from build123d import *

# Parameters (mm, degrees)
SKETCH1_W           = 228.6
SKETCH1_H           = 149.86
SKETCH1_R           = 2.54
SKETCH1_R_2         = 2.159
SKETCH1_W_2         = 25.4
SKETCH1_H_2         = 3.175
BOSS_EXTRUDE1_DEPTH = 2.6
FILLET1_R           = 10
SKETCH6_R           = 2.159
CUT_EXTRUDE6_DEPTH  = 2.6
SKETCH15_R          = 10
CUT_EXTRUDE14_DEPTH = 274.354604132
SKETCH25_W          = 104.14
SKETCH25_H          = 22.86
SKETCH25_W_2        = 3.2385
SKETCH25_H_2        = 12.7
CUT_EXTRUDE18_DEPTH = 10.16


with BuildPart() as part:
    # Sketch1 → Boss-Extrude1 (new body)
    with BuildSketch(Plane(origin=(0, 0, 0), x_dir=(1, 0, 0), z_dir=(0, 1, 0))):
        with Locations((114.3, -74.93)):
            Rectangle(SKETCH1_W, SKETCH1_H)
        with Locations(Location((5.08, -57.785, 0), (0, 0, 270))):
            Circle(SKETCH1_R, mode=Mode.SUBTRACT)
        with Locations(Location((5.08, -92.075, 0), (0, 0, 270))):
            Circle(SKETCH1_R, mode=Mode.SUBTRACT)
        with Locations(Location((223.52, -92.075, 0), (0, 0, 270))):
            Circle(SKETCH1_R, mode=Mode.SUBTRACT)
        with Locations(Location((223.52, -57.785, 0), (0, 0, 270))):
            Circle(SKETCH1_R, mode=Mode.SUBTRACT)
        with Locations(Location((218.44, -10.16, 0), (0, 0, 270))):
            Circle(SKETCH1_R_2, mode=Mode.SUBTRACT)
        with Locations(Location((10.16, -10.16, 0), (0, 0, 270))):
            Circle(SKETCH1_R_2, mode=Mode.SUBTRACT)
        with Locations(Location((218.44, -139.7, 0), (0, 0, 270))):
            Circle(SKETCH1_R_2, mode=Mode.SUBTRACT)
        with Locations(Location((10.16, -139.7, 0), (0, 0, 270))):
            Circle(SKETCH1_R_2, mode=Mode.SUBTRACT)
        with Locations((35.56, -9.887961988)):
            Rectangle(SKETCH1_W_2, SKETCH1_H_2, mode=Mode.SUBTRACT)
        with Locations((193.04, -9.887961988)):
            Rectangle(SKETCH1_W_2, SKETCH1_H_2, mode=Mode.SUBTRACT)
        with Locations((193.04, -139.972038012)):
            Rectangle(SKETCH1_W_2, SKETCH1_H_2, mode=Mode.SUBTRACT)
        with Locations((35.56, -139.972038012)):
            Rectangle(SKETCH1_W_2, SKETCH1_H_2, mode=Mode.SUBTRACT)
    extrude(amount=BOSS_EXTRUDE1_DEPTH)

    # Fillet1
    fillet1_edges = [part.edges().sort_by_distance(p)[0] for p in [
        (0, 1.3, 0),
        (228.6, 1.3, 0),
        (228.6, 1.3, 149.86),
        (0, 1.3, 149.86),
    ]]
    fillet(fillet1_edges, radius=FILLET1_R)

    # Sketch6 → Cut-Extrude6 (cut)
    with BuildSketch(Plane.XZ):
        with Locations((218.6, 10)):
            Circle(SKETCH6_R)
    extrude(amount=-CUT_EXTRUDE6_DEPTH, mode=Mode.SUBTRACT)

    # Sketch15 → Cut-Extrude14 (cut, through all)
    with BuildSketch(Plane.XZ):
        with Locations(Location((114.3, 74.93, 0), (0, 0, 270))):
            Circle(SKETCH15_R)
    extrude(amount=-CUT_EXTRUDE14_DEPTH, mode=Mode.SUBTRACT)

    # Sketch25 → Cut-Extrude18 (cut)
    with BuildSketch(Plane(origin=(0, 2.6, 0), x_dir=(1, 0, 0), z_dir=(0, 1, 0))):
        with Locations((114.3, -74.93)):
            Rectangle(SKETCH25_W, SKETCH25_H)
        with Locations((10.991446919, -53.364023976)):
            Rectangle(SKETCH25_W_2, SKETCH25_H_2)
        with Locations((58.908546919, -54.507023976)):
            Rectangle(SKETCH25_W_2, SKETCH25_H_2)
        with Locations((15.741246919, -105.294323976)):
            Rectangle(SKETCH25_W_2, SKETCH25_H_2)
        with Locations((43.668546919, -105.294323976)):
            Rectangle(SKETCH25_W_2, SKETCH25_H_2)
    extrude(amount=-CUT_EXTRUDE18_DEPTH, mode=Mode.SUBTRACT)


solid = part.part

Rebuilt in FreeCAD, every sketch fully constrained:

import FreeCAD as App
import Part
import Sketcher

V = App.Vector
Q = App.Units.Quantity


def edges_at(feature, points):
    """Names of the edges that pass closest to the given points."""
    edges = feature.Shape.Edges
    near = lambda p: min(range(len(edges)), key=lambda i: edges[i].distToShape(Part.Vertex(*p))[0])
    return sorted({f"Edge{near(p) + 1}" for p in points})

doc = App.newDocument("Part")
body = doc.addObject("PartDesign::Body", "Body")

# Sketch on XZ plane
sketch1 = body.newObject("Sketcher::SketchObject", "Sketch")
sketch1.AttachmentSupport = (doc.getObject("XZ_Plane"), [""])
sketch1.MapMode = "FlatFace"
sketch1.addGeometry(Part.LineSegment(V(0, 0, 0), V(0, 149.86, 0)), False)
sketch1.addGeometry(Part.LineSegment(V(0, 149.86, 0), V(228.6, 149.86, 0)), False)
sketch1.addGeometry(Part.LineSegment(V(228.6, 149.86, 0), V(228.6, 0, 0)), False)
sketch1.addGeometry(Part.LineSegment(V(228.6, 0, 0), V(0, 0, 0)), False)
sketch1.addGeometry(Part.Circle(V(10.16, 139.7, 0), V(0, 0, 1), 2.159), False)
sketch1.addGeometry(Part.LineSegment(V(48.26, 141.559538, 0), V(22.86, 141.559538, 0)), False)
sketch1.addGeometry(Part.LineSegment(V(22.86, 141.559538, 0), V(22.86, 138.384538, 0)), False)
sketch1.addGeometry(Part.LineSegment(V(22.86, 138.384538, 0), V(48.26, 138.384538, 0)), False)
sketch1.addGeometry(Part.LineSegment(V(48.26, 138.384538, 0), V(48.26, 141.559538, 0)), False)
sketch1.addGeometry(Part.Circle(V(5.08, 92.075, 0), V(0, 0, 1), 2.54), False)
sketch1.addGeometry(Part.LineSegment(V(205.74, 141.559538, 0), V(180.34, 141.559538, 0)), False)
sketch1.addGeometry(Part.LineSegment(V(180.34, 141.559538, 0), V(180.34, 138.384538, 0)), False)
sketch1.addGeometry(Part.LineSegment(V(180.34, 138.384538, 0), V(205.74, 138.384538, 0)), False)
sketch1.addGeometry(Part.LineSegment(V(205.74, 138.384538, 0), V(205.74, 141.559538, 0)), False)
sketch1.addGeometry(Part.Circle(V(218.44, 139.7, 0), V(0, 0, 1), 2.159), False)
sketch1.addGeometry(Part.Circle(V(223.52, 92.075, 0), V(0, 0, 1), 2.54), False)
sketch1.addGeometry(Part.Circle(V(5.08, 57.785, 0), V(0, 0, 1), 2.54), False)
sketch1.addGeometry(Part.Circle(V(10.16, 10.16, 0), V(0, 0, 1), 2.159), False)
sketch1.addGeometry(Part.LineSegment(V(48.26, 11.475462, 0), V(22.86, 11.475462, 0)), False)
sketch1.addGeometry(Part.LineSegment(V(22.86, 11.475462, 0), V(22.86, 8.300462, 0)), False)
sketch1.addGeometry(Part.LineSegment(V(22.86, 8.300462, 0), V(48.26, 8.300462, 0)), False)
sketch1.addGeometry(Part.LineSegment(V(48.26, 8.300462, 0), V(48.26, 11.475462, 0)), False)
sketch1.addGeometry(Part.Circle(V(223.52, 57.785, 0), V(0, 0, 1), 2.54), False)
sketch1.addGeometry(Part.LineSegment(V(205.74, 11.475462, 0), V(180.34, 11.475462, 0)), False)
sketch1.addGeometry(Part.LineSegment(V(180.34, 11.475462, 0), V(180.34, 8.300462, 0)), False)
sketch1.addGeometry(Part.LineSegment(V(180.34, 8.300462, 0), V(205.74, 8.300462, 0)), False)
sketch1.addGeometry(Part.LineSegment(V(205.74, 8.300462, 0), V(205.74, 11.475462, 0)), False)
sketch1.addGeometry(Part.Circle(V(218.44, 10.16, 0), V(0, 0, 1), 2.159), False)
sketch1.addConstraint(Sketcher.Constraint("Coincident", 0, 2, 1, 1))
sketch1.addConstraint(Sketcher.Constraint("Coincident", 1, 2, 2, 1))
sketch1.addConstraint(Sketcher.Constraint("Coincident", 2, 2, 3, 1))
sketch1.addConstraint(Sketcher.Constraint("Coincident", 3, 2, 0, 1))
sketch1.addConstraint(Sketcher.Constraint("Coincident", 5, 2, 6, 1))
sketch1.addConstraint(Sketcher.Constraint("Coincident", 6, 2, 7, 1))
sketch1.addConstraint(Sketcher.Constraint("Coincident", 7, 2, 8, 1))
sketch1.addConstraint(Sketcher.Constraint("Coincident", 8, 2, 5, 1))
sketch1.addConstraint(Sketcher.Constraint("Coincident", 10, 2, 11, 1))
sketch1.addConstraint(Sketcher.Constraint("Coincident", 11, 2, 12, 1))
sketch1.addConstraint(Sketcher.Constraint("Coincident", 12, 2, 13, 1))
sketch1.addConstraint(Sketcher.Constraint("Coincident", 13, 2, 10, 1))
sketch1.addConstraint(Sketcher.Constraint("Coincident", 18, 2, 19, 1))
sketch1.addConstraint(Sketcher.Constraint("Coincident", 19, 2, 20, 1))
sketch1.addConstraint(Sketcher.Constraint("Coincident", 20, 2, 21, 1))
sketch1.addConstraint(Sketcher.Constraint("Coincident", 21, 2, 18, 1))
sketch1.addConstraint(Sketcher.Constraint("Coincident", 23, 2, 24, 1))
sketch1.addConstraint(Sketcher.Constraint("Coincident", 24, 2, 25, 1))
sketch1.addConstraint(Sketcher.Constraint("Coincident", 25, 2, 26, 1))
sketch1.addConstraint(Sketcher.Constraint("Coincident", 26, 2, 23, 1))
sketch1.addConstraint(Sketcher.Constraint("Vertical", 0))
sketch1.addConstraint(Sketcher.Constraint("Horizontal", 1))
sketch1.addConstraint(Sketcher.Constraint("Vertical", 2))
sketch1.addConstraint(Sketcher.Constraint("Horizontal", 3))
sketch1.addConstraint(Sketcher.Constraint("Horizontal", 5))
sketch1.addConstraint(Sketcher.Constraint("Vertical", 6))
sketch1.addConstraint(Sketcher.Constraint("Horizontal", 7))
sketch1.addConstraint(Sketcher.Constraint("Vertical", 8))
sketch1.addConstraint(Sketcher.Constraint("Horizontal", 10))
sketch1.addConstraint(Sketcher.Constraint("Vertical", 11))
sketch1.addConstraint(Sketcher.Constraint("Horizontal", 12))
sketch1.addConstraint(Sketcher.Constraint("Vertical", 13))
sketch1.addConstraint(Sketcher.Constraint("Horizontal", 18))
sketch1.addConstraint(Sketcher.Constraint("Vertical", 19))
sketch1.addConstraint(Sketcher.Constraint("Horizontal", 20))
sketch1.addConstraint(Sketcher.Constraint("Vertical", 21))
sketch1.addConstraint(Sketcher.Constraint("Horizontal", 23))
sketch1.addConstraint(Sketcher.Constraint("Vertical", 24))
sketch1.addConstraint(Sketcher.Constraint("Horizontal", 25))
sketch1.addConstraint(Sketcher.Constraint("Vertical", 26))
sketch1.addConstraint(Sketcher.Constraint("Coincident", 3, 2, -1, 1))
sketch1.addConstraint(Sketcher.Constraint("Equal", 4, 14))
sketch1.addConstraint(Sketcher.Constraint("Equal", 9, 15))
sketch1.addConstraint(Sketcher.Constraint("Equal", 15, 16))
sketch1.addConstraint(Sketcher.Constraint("Equal", 14, 17))
sketch1.addConstraint(Sketcher.Constraint("Equal", 16, 22))
sketch1.addConstraint(Sketcher.Constraint("Equal", 17, 27))
sketch1.addConstraint(Sketcher.Constraint("Horizontal", 4, 3, 14, 3))
sketch1.addConstraint(Sketcher.Constraint("Horizontal", 9, 3, 15, 3))
sketch1.addConstraint(Sketcher.Constraint("Horizontal", 16, 3, 22, 3))
sketch1.addConstraint(Sketcher.Constraint("Horizontal", 17, 3, 27, 3))
sketch1.addConstraint(Sketcher.Constraint("Horizontal", 8, 2, 10, 2))
sketch1.addConstraint(Sketcher.Constraint("Horizontal", 7, 2, 11, 2))
sketch1.addConstraint(Sketcher.Constraint("Horizontal", 21, 2, 23, 2))
sketch1.addConstraint(Sketcher.Constraint("Horizontal", 20, 2, 24, 2))
sketch1.addConstraint(Sketcher.Constraint("Vertical", 9, 3, 16, 3))
sketch1.addConstraint(Sketcher.Constraint("Vertical", 4, 3, 17, 3))
sketch1.addConstraint(Sketcher.Constraint("Vertical", 15, 3, 22, 3))
sketch1.addConstraint(Sketcher.Constraint("Vertical", 14, 3, 27, 3))
sketch1.addConstraint(Sketcher.Constraint("Vertical", 6, 2, 18, 2))
sketch1.addConstraint(Sketcher.Constraint("Vertical", 8, 2, 20, 2))
sketch1.addConstraint(Sketcher.Constraint("Vertical", 11, 2, 23, 2))
sketch1.addConstraint(Sketcher.Constraint("Vertical", 13, 2, 25, 2))
sketch1.addConstraint(Sketcher.Constraint("Equal", 7, 10))
sketch1.addConstraint(Sketcher.Constraint("Equal", 13, 19))
sketch1.addConstraint(Sketcher.Constraint("Diameter", 9, Q("0.2 in")))
sketch1.addConstraint(Sketcher.Constraint("Diameter", 4, Q("0.17 in")))
sketch1.addConstraint(Sketcher.Constraint("DistanceX", 1, 1, 1, 2, Q("9 in")))
sketch1.addConstraint(Sketcher.Constraint("DistanceX", 5, 2, 5, 1, Q("1 in")))
sketch1.addConstraint(Sketcher.Constraint("DistanceY", 0, 1, 0, 2, Q("5.9 in")))
sketch1.addConstraint(Sketcher.Constraint("DistanceX", -1, 1, 4, 3, Q("0.4 in")))
sketch1.addConstraint(Sketcher.Constraint("DistanceY", -1, 1, 4, 3, Q("5.5 in")))
sketch1.addConstraint(Sketcher.Constraint("DistanceX", -1, 1, 9, 3, Q("0.2 in")))
sketch1.addConstraint(Sketcher.Constraint("DistanceX", -1, 1, 14, 3, Q("8.6 in")))
sketch1.addConstraint(Sketcher.Constraint("DistanceX", -1, 1, 15, 3, Q("8.8 in")))
sketch1.addConstraint(Sketcher.Constraint("DistanceY", -1, 1, 17, 3, Q("0.4 in")))
sketch1.addConstraint(Sketcher.Constraint("DistanceX", -1, 1, 5, 2, Q("0.9 in")))
sketch1.addConstraint(Sketcher.Constraint("DistanceX", -1, 1, 10, 2, Q("7.1 in")))
sketch1.addConstraint(Sketcher.Constraint("DistanceY", 6, 2, 6, 1, Q("0.125 in")))
sketch1.addConstraint(Sketcher.Constraint("DistanceY", 16, 3, 9, 3, Q("1.35 in")))
sketch1.addConstraint(Sketcher.Constraint("DistanceY", -1, 1, 9, 3, Q("3.625 in")))
sketch1.addConstraint(Sketcher.Constraint("DistanceY", -1, 1, 5, 2, 141.559538))
sketch1.addConstraint(Sketcher.Constraint("DistanceY", -1, 1, 18, 2, 11.475462))
pad1 = body.newObject("PartDesign::Pad", "Pad")
pad1.Profile = sketch1
pad1.Length = 2.6
pad1.Reversed = True
doc.recompute()

fillet = body.newObject("PartDesign::Fillet", "Fillet")
fillet.Base = (pad1, edges_at(pad1, [
    (0, 1.3, 0),
    (228.6, 1.3, 0),
    (228.6, 1.3, 149.86),
    (0, 1.3, 149.86),
]))
fillet.Radius = 10

# Sketch on XZ plane
sketch2 = body.newObject("Sketcher::SketchObject", "Sketch001")
sketch2.AttachmentSupport = (doc.getObject("XZ_Plane"), [""])
sketch2.MapMode = "FlatFace"
sketch2.addGeometry(Part.Circle(V(218.6, 10, 0), V(0, 0, 1), 2.159), False)
sketch2.addConstraint(Sketcher.Constraint("Diameter", 0, Q("0.17 in")))
sketch2.addConstraint(Sketcher.Constraint("DistanceX", -1, 1, 0, 3, 218.6))
sketch2.addConstraint(Sketcher.Constraint("DistanceY", -1, 1, 0, 3, 10.0))
pocket1 = body.newObject("PartDesign::Pocket", "Pocket")
pocket1.Profile = sketch2
pocket1.Length = 2.6

# Sketch on XZ plane
sketch3 = body.newObject("Sketcher::SketchObject", "Sketch002")
sketch3.AttachmentSupport = (doc.getObject("XZ_Plane"), [""])
sketch3.MapMode = "FlatFace"
sketch3.addGeometry(Part.Circle(V(114.3, 74.93, 0), V(0, 0, 1), 10), False)
sketch3.addConstraint(Sketcher.Constraint("DistanceX", -1, 1, 0, 3, Q("4.5 in")))
sketch3.addConstraint(Sketcher.Constraint("Diameter", 0, 20.0))
sketch3.addConstraint(Sketcher.Constraint("DistanceY", -1, 1, 0, 3, Q("2.95 in")))
pocket2 = body.newObject("PartDesign::Pocket", "Pocket001")
pocket2.Profile = sketch3
pocket2.Type = "ThroughAll"

# Sketch on XZ plane
sketch4 = body.newObject("Sketcher::SketchObject", "Sketch003")
sketch4.AttachmentSupport = (doc.getObject("XZ_Plane"), [""])
sketch4.MapMode = "FlatFace"
sketch4.AttachmentOffset = App.Placement(V(0, 0, -2.6), App.Rotation())
sketch4.addGeometry(Part.LineSegment(V(62.23, 63.5, 0), V(62.23, 86.36, 0)), False)
sketch4.addGeometry(Part.LineSegment(V(62.23, 86.36, 0), V(166.37, 86.36, 0)), False)
sketch4.addGeometry(Part.LineSegment(V(166.37, 86.36, 0), V(166.37, 63.5, 0)), False)
sketch4.addGeometry(Part.LineSegment(V(166.37, 63.5, 0), V(62.23, 63.5, 0)), False)
sketch4.addGeometry(Part.LineSegment(V(9.372197, 47.014024, 0), V(9.372197, 59.714024, 0)), False)
sketch4.addGeometry(Part.LineSegment(V(9.372197, 59.714024, 0), V(12.610697, 59.714024, 0)), False)
sketch4.addGeometry(Part.LineSegment(V(12.610697, 59.714024, 0), V(12.610697, 47.014024, 0)), False)
sketch4.addGeometry(Part.LineSegment(V(12.610697, 47.014024, 0), V(9.372197, 47.014024, 0)), False)
sketch4.addGeometry(Part.LineSegment(V(57.289297, 48.157024, 0), V(57.289297, 60.857024, 0)), False)
sketch4.addGeometry(Part.LineSegment(V(57.289297, 60.857024, 0), V(60.527797, 60.857024, 0)), False)
sketch4.addGeometry(Part.LineSegment(V(60.527797, 60.857024, 0), V(60.527797, 48.157024, 0)), False)
sketch4.addGeometry(Part.LineSegment(V(60.527797, 48.157024, 0), V(57.289297, 48.157024, 0)), False)
sketch4.addGeometry(Part.LineSegment(V(14.121997, 98.944324, 0), V(14.121997, 111.644324, 0)), False)
sketch4.addGeometry(Part.LineSegment(V(14.121997, 111.644324, 0), V(17.360497, 111.644324, 0)), False)
sketch4.addGeometry(Part.LineSegment(V(17.360497, 111.644324, 0), V(17.360497, 98.944324, 0)), False)
sketch4.addGeometry(Part.LineSegment(V(17.360497, 98.944324, 0), V(14.121997, 98.944324, 0)), False)
sketch4.addGeometry(Part.LineSegment(V(42.049297, 98.944324, 0), V(42.049297, 111.644324, 0)), False)
sketch4.addGeometry(Part.LineSegment(V(42.049297, 111.644324, 0), V(45.287797, 111.644324, 0)), False)
sketch4.addGeometry(Part.LineSegment(V(45.287797, 111.644324, 0), V(45.287797, 98.944324, 0)), False)
sketch4.addGeometry(Part.LineSegment(V(45.287797, 98.944324, 0), V(42.049297, 98.944324, 0)), False)
sketch4.addConstraint(Sketcher.Constraint("Coincident", 0, 2, 1, 1))
sketch4.addConstraint(Sketcher.Constraint("Coincident", 1, 2, 2, 1))
sketch4.addConstraint(Sketcher.Constraint("Coincident", 2, 2, 3, 1))
sketch4.addConstraint(Sketcher.Constraint("Coincident", 3, 2, 0, 1))
sketch4.addConstraint(Sketcher.Constraint("Coincident", 4, 2, 5, 1))
sketch4.addConstraint(Sketcher.Constraint("Coincident", 5, 2, 6, 1))
sketch4.addConstraint(Sketcher.Constraint("Coincident", 6, 2, 7, 1))
sketch4.addConstraint(Sketcher.Constraint("Coincident", 7, 2, 4, 1))
sketch4.addConstraint(Sketcher.Constraint("Coincident", 8, 2, 9, 1))
sketch4.addConstraint(Sketcher.Constraint("Coincident", 9, 2, 10, 1))
sketch4.addConstraint(Sketcher.Constraint("Coincident", 10, 2, 11, 1))
sketch4.addConstraint(Sketcher.Constraint("Coincident", 11, 2, 8, 1))
sketch4.addConstraint(Sketcher.Constraint("Coincident", 12, 2, 13, 1))
sketch4.addConstraint(Sketcher.Constraint("Coincident", 13, 2, 14, 1))
sketch4.addConstraint(Sketcher.Constraint("Coincident", 14, 2, 15, 1))
sketch4.addConstraint(Sketcher.Constraint("Coincident", 15, 2, 12, 1))
sketch4.addConstraint(Sketcher.Constraint("Coincident", 16, 2, 17, 1))
sketch4.addConstraint(Sketcher.Constraint("Coincident", 17, 2, 18, 1))
sketch4.addConstraint(Sketcher.Constraint("Coincident", 18, 2, 19, 1))
sketch4.addConstraint(Sketcher.Constraint("Coincident", 19, 2, 16, 1))
sketch4.addConstraint(Sketcher.Constraint("Vertical", 0))
sketch4.addConstraint(Sketcher.Constraint("Horizontal", 1))
sketch4.addConstraint(Sketcher.Constraint("Vertical", 2))
sketch4.addConstraint(Sketcher.Constraint("Horizontal", 3))
sketch4.addConstraint(Sketcher.Constraint("Vertical", 4))
sketch4.addConstraint(Sketcher.Constraint("Horizontal", 5))
sketch4.addConstraint(Sketcher.Constraint("Vertical", 6))
sketch4.addConstraint(Sketcher.Constraint("Horizontal", 7))
sketch4.addConstraint(Sketcher.Constraint("Vertical", 8))
sketch4.addConstraint(Sketcher.Constraint("Horizontal", 9))
sketch4.addConstraint(Sketcher.Constraint("Vertical", 10))
sketch4.addConstraint(Sketcher.Constraint("Horizontal", 11))
sketch4.addConstraint(Sketcher.Constraint("Vertical", 12))
sketch4.addConstraint(Sketcher.Constraint("Horizontal", 13))
sketch4.addConstraint(Sketcher.Constraint("Vertical", 14))
sketch4.addConstraint(Sketcher.Constraint("Horizontal", 15))
sketch4.addConstraint(Sketcher.Constraint("Vertical", 16))
sketch4.addConstraint(Sketcher.Constraint("Horizontal", 17))
sketch4.addConstraint(Sketcher.Constraint("Vertical", 18))
sketch4.addConstraint(Sketcher.Constraint("Horizontal", 19))
sketch4.addConstraint(Sketcher.Constraint("Horizontal", 13, 2, 16, 2))
sketch4.addConstraint(Sketcher.Constraint("Horizontal", 15, 2, 18, 2))
sketch4.addConstraint(Sketcher.Constraint("Equal", 7, 9))
sketch4.addConstraint(Sketcher.Constraint("Equal", 11, 13))
sketch4.addConstraint(Sketcher.Constraint("Equal", 15, 17))
sketch4.addConstraint(Sketcher.Constraint("Equal", 6, 8))
sketch4.addConstraint(Sketcher.Constraint("Equal", 10, 12))
sketch4.addConstraint(Sketcher.Constraint("DistanceX", 1, 1, 1, 2, Q("4.1 in")))
sketch4.addConstraint(Sketcher.Constraint("DistanceY", 0, 1, 0, 2, Q("0.9 in")))
sketch4.addConstraint(Sketcher.Constraint("DistanceY", 4, 1, 4, 2, Q("0.5 in")))
sketch4.addConstraint(Sketcher.Constraint("DistanceY", -1, 1, 0, 2, Q("3.4 in")))
sketch4.addConstraint(Sketcher.Constraint("DistanceX", -1, 1, 0, 2, Q("2.45 in")))
sketch4.addConstraint(Sketcher.Constraint("DistanceX", 5, 1, 5, 2, Q("0.1275 in")))
sketch4.addConstraint(Sketcher.Constraint("DistanceX", 5, 2, 8, 2, Q("1.759 in")))
sketch4.addConstraint(Sketcher.Constraint("DistanceY", 5, 2, 8, 2, Q("0.045 in")))
sketch4.addConstraint(Sketcher.Constraint("DistanceX", 4, 2, 12, 2, Q("0.187 in")))
sketch4.addConstraint(Sketcher.Constraint("DistanceX", 13, 2, 16, 2, Q("0.972 in")))
sketch4.addConstraint(Sketcher.Constraint("DistanceY", 5, 2, 12, 2, Q("2.0445 in")))
sketch4.addConstraint(Sketcher.Constraint("DistanceX", -1, 1, 4, 2, 9.372197))
sketch4.addConstraint(Sketcher.Constraint("DistanceY", -1, 1, 4, 2, 59.714024))
pocket3 = body.newObject("PartDesign::Pocket", "Pocket002")
pocket3.Profile = sketch4
pocket3.Length = Q("0.4 in")
pocket3.Reversed = True

doc.recompute()
